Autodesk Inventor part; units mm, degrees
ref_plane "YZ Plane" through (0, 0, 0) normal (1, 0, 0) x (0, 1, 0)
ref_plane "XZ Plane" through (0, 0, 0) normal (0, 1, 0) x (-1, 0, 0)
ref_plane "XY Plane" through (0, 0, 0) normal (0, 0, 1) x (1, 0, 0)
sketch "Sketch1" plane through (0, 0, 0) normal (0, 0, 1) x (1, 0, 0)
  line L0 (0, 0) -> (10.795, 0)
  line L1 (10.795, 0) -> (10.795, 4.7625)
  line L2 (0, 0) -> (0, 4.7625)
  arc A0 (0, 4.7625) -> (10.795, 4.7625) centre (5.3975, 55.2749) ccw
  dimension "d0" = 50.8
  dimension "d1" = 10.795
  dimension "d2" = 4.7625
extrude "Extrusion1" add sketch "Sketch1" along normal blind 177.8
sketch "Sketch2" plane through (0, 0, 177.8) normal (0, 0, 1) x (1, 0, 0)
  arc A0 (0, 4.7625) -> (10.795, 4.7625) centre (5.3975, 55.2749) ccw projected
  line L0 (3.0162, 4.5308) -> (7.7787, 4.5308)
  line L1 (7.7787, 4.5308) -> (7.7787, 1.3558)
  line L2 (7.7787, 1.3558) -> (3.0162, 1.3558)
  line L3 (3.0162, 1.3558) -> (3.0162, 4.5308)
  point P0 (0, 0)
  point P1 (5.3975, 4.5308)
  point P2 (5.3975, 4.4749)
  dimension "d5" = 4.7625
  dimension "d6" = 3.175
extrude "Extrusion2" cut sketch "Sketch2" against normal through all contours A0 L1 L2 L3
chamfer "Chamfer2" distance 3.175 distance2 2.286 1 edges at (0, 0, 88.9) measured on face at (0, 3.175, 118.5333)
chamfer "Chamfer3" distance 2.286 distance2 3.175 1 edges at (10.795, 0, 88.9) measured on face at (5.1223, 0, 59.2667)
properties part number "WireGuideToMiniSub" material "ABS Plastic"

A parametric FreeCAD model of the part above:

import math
import FreeCAD as App
import Part
import Sketcher
from FreeCAD import Vector
Q = App.Units.Quantity


def edges_at(feature, points):
    """Names of the edges that pass closest to the given points."""
    edges = feature.Shape.Edges
    near = lambda p: min(range(len(edges)), key=lambda i: edges[i].distToShape(Part.Vertex(*p))[0])
    return sorted({f"Edge{near(p) + 1}" for p in points})

doc = App.newDocument("Part")
body = doc.addObject("PartDesign::Body", "Body")

sketch1 = body.newObject("Sketcher::SketchObject", "Sketch")
sketch1.AttachmentSupport = (doc.getObject("XY_Plane"), [""])
sketch1.MapMode = "FlatFace"
sketch1.addGeometry([
    Part.LineSegment(Vector(0, 4.8, 0), Vector(0, 0, 0)),
    Part.LineSegment(Vector(0, 0, 0), Vector(10.8, 0, 0)),
    Part.LineSegment(Vector(10.8, 0, 0), Vector(10.8, 4.8, 0)),
    Part.ArcOfCircle(Part.Circle(Vector(5.4, 55.3, 0), Vector(0, 0, 1), 50.8), math.radians(-96.1), math.radians(-83.9)),
], False)
sketch1.addConstraint([
    Sketcher.Constraint("Coincident", 0, 2, 1, 1),
    Sketcher.Constraint("Coincident", 1, 2, 2, 1),
    Sketcher.Constraint("Coincident", 2, 2, 3, 2),
    Sketcher.Constraint("Coincident", 3, 1, 0, 1),
    Sketcher.Constraint("Vertical", 0),
    Sketcher.Constraint("Horizontal", 1),
    Sketcher.Constraint("Vertical", 2),
    Sketcher.Constraint("Coincident", 0, 2, -1, 1),
    Sketcher.Constraint("Horizontal", 2, 2, 3, 1),
    Sketcher.Constraint("Radius", 3, Q("2 in")),
    Sketcher.Constraint("DistanceX", 1, 1, 1, 2, Q("0.425 in")),
    Sketcher.Constraint("DistanceY", 0, 2, 0, 1, Q("0.1875 in")),
])
pad1 = body.newObject("PartDesign::Pad", "Pad")
pad1.Profile = sketch1
pad1.Length = Q("7 in")

sketch2 = body.newObject("Sketcher::SketchObject", "Sketch001")
sketch2.AttachmentSupport = (doc.getObject("XY_Plane"), [""])
sketch2.MapMode = "FlatFace"
sketch2.AttachmentOffset = App.Placement(Vector(0, 0, 7 * 25.4), App.Rotation())
sketch2.addGeometry([
    Part.ArcOfCircle(Part.Circle(Vector(5.4, 55.3, 0), Vector(0, 0, 1), 50.8), math.radians(-92.69), math.radians(-87.31)),
    Part.LineSegment(Vector(3, 4.5, 0), Vector(3, 1.4, 0)),
    Part.LineSegment(Vector(3, 1.4, 0), Vector(7.8, 1.4, 0)),
    Part.LineSegment(Vector(7.8, 1.4, 0), Vector(7.8, 4.5, 0)),
], False)
sketch2.addConstraint([
    Sketcher.Constraint("Coincident", 0, 1, 1, 1),
    Sketcher.Constraint("Coincident", 1, 2, 2, 1),
    Sketcher.Constraint("Coincident", 2, 2, 3, 1),
    Sketcher.Constraint("Coincident", 3, 2, 0, 2),
    Sketcher.Constraint("Vertical", 1),
    Sketcher.Constraint("Horizontal", 2),
    Sketcher.Constraint("Vertical", 3),
    Sketcher.Constraint("Horizontal", 0, 1, 3, 2),
    Sketcher.Constraint("Radius", 0, Q("2 in")),
    Sketcher.Constraint("DistanceX", 2, 1, 2, 2, Q("0.1875 in")),
    Sketcher.Constraint("DistanceY", 1, 2, 1, 1, Q("0.125 in")),
    Sketcher.Constraint("DistanceX", -1, 1, 0, 3, Q("0.2125 in")),
    Sketcher.Constraint("DistanceY", -1, 1, 0, 3, 55.275),
])
pocket1 = body.newObject("PartDesign::Pocket", "Pocket")
pocket1.Profile = sketch2
pocket1.Type = "ThroughAll"
doc.recompute()

chamfer = body.newObject("PartDesign::Chamfer", "Chamfer")
chamfer.Base = (pocket1, edges_at(pocket1, [(0, 0, 88.9)]))
chamfer.ChamferType = "Two distances"
chamfer.Size = Q("0.125 in")
chamfer.Size2 = Q("0.09 in")
doc.recompute()

chamfer2 = body.newObject("PartDesign::Chamfer", "Chamfer001")
chamfer2.Base = (chamfer, edges_at(chamfer, [(10.795, 0, 88.9)]))
chamfer2.ChamferType = "Two distances"
chamfer2.Size = Q("0.09 in")
chamfer2.Size2 = Q("0.125 in")

doc.recompute()
